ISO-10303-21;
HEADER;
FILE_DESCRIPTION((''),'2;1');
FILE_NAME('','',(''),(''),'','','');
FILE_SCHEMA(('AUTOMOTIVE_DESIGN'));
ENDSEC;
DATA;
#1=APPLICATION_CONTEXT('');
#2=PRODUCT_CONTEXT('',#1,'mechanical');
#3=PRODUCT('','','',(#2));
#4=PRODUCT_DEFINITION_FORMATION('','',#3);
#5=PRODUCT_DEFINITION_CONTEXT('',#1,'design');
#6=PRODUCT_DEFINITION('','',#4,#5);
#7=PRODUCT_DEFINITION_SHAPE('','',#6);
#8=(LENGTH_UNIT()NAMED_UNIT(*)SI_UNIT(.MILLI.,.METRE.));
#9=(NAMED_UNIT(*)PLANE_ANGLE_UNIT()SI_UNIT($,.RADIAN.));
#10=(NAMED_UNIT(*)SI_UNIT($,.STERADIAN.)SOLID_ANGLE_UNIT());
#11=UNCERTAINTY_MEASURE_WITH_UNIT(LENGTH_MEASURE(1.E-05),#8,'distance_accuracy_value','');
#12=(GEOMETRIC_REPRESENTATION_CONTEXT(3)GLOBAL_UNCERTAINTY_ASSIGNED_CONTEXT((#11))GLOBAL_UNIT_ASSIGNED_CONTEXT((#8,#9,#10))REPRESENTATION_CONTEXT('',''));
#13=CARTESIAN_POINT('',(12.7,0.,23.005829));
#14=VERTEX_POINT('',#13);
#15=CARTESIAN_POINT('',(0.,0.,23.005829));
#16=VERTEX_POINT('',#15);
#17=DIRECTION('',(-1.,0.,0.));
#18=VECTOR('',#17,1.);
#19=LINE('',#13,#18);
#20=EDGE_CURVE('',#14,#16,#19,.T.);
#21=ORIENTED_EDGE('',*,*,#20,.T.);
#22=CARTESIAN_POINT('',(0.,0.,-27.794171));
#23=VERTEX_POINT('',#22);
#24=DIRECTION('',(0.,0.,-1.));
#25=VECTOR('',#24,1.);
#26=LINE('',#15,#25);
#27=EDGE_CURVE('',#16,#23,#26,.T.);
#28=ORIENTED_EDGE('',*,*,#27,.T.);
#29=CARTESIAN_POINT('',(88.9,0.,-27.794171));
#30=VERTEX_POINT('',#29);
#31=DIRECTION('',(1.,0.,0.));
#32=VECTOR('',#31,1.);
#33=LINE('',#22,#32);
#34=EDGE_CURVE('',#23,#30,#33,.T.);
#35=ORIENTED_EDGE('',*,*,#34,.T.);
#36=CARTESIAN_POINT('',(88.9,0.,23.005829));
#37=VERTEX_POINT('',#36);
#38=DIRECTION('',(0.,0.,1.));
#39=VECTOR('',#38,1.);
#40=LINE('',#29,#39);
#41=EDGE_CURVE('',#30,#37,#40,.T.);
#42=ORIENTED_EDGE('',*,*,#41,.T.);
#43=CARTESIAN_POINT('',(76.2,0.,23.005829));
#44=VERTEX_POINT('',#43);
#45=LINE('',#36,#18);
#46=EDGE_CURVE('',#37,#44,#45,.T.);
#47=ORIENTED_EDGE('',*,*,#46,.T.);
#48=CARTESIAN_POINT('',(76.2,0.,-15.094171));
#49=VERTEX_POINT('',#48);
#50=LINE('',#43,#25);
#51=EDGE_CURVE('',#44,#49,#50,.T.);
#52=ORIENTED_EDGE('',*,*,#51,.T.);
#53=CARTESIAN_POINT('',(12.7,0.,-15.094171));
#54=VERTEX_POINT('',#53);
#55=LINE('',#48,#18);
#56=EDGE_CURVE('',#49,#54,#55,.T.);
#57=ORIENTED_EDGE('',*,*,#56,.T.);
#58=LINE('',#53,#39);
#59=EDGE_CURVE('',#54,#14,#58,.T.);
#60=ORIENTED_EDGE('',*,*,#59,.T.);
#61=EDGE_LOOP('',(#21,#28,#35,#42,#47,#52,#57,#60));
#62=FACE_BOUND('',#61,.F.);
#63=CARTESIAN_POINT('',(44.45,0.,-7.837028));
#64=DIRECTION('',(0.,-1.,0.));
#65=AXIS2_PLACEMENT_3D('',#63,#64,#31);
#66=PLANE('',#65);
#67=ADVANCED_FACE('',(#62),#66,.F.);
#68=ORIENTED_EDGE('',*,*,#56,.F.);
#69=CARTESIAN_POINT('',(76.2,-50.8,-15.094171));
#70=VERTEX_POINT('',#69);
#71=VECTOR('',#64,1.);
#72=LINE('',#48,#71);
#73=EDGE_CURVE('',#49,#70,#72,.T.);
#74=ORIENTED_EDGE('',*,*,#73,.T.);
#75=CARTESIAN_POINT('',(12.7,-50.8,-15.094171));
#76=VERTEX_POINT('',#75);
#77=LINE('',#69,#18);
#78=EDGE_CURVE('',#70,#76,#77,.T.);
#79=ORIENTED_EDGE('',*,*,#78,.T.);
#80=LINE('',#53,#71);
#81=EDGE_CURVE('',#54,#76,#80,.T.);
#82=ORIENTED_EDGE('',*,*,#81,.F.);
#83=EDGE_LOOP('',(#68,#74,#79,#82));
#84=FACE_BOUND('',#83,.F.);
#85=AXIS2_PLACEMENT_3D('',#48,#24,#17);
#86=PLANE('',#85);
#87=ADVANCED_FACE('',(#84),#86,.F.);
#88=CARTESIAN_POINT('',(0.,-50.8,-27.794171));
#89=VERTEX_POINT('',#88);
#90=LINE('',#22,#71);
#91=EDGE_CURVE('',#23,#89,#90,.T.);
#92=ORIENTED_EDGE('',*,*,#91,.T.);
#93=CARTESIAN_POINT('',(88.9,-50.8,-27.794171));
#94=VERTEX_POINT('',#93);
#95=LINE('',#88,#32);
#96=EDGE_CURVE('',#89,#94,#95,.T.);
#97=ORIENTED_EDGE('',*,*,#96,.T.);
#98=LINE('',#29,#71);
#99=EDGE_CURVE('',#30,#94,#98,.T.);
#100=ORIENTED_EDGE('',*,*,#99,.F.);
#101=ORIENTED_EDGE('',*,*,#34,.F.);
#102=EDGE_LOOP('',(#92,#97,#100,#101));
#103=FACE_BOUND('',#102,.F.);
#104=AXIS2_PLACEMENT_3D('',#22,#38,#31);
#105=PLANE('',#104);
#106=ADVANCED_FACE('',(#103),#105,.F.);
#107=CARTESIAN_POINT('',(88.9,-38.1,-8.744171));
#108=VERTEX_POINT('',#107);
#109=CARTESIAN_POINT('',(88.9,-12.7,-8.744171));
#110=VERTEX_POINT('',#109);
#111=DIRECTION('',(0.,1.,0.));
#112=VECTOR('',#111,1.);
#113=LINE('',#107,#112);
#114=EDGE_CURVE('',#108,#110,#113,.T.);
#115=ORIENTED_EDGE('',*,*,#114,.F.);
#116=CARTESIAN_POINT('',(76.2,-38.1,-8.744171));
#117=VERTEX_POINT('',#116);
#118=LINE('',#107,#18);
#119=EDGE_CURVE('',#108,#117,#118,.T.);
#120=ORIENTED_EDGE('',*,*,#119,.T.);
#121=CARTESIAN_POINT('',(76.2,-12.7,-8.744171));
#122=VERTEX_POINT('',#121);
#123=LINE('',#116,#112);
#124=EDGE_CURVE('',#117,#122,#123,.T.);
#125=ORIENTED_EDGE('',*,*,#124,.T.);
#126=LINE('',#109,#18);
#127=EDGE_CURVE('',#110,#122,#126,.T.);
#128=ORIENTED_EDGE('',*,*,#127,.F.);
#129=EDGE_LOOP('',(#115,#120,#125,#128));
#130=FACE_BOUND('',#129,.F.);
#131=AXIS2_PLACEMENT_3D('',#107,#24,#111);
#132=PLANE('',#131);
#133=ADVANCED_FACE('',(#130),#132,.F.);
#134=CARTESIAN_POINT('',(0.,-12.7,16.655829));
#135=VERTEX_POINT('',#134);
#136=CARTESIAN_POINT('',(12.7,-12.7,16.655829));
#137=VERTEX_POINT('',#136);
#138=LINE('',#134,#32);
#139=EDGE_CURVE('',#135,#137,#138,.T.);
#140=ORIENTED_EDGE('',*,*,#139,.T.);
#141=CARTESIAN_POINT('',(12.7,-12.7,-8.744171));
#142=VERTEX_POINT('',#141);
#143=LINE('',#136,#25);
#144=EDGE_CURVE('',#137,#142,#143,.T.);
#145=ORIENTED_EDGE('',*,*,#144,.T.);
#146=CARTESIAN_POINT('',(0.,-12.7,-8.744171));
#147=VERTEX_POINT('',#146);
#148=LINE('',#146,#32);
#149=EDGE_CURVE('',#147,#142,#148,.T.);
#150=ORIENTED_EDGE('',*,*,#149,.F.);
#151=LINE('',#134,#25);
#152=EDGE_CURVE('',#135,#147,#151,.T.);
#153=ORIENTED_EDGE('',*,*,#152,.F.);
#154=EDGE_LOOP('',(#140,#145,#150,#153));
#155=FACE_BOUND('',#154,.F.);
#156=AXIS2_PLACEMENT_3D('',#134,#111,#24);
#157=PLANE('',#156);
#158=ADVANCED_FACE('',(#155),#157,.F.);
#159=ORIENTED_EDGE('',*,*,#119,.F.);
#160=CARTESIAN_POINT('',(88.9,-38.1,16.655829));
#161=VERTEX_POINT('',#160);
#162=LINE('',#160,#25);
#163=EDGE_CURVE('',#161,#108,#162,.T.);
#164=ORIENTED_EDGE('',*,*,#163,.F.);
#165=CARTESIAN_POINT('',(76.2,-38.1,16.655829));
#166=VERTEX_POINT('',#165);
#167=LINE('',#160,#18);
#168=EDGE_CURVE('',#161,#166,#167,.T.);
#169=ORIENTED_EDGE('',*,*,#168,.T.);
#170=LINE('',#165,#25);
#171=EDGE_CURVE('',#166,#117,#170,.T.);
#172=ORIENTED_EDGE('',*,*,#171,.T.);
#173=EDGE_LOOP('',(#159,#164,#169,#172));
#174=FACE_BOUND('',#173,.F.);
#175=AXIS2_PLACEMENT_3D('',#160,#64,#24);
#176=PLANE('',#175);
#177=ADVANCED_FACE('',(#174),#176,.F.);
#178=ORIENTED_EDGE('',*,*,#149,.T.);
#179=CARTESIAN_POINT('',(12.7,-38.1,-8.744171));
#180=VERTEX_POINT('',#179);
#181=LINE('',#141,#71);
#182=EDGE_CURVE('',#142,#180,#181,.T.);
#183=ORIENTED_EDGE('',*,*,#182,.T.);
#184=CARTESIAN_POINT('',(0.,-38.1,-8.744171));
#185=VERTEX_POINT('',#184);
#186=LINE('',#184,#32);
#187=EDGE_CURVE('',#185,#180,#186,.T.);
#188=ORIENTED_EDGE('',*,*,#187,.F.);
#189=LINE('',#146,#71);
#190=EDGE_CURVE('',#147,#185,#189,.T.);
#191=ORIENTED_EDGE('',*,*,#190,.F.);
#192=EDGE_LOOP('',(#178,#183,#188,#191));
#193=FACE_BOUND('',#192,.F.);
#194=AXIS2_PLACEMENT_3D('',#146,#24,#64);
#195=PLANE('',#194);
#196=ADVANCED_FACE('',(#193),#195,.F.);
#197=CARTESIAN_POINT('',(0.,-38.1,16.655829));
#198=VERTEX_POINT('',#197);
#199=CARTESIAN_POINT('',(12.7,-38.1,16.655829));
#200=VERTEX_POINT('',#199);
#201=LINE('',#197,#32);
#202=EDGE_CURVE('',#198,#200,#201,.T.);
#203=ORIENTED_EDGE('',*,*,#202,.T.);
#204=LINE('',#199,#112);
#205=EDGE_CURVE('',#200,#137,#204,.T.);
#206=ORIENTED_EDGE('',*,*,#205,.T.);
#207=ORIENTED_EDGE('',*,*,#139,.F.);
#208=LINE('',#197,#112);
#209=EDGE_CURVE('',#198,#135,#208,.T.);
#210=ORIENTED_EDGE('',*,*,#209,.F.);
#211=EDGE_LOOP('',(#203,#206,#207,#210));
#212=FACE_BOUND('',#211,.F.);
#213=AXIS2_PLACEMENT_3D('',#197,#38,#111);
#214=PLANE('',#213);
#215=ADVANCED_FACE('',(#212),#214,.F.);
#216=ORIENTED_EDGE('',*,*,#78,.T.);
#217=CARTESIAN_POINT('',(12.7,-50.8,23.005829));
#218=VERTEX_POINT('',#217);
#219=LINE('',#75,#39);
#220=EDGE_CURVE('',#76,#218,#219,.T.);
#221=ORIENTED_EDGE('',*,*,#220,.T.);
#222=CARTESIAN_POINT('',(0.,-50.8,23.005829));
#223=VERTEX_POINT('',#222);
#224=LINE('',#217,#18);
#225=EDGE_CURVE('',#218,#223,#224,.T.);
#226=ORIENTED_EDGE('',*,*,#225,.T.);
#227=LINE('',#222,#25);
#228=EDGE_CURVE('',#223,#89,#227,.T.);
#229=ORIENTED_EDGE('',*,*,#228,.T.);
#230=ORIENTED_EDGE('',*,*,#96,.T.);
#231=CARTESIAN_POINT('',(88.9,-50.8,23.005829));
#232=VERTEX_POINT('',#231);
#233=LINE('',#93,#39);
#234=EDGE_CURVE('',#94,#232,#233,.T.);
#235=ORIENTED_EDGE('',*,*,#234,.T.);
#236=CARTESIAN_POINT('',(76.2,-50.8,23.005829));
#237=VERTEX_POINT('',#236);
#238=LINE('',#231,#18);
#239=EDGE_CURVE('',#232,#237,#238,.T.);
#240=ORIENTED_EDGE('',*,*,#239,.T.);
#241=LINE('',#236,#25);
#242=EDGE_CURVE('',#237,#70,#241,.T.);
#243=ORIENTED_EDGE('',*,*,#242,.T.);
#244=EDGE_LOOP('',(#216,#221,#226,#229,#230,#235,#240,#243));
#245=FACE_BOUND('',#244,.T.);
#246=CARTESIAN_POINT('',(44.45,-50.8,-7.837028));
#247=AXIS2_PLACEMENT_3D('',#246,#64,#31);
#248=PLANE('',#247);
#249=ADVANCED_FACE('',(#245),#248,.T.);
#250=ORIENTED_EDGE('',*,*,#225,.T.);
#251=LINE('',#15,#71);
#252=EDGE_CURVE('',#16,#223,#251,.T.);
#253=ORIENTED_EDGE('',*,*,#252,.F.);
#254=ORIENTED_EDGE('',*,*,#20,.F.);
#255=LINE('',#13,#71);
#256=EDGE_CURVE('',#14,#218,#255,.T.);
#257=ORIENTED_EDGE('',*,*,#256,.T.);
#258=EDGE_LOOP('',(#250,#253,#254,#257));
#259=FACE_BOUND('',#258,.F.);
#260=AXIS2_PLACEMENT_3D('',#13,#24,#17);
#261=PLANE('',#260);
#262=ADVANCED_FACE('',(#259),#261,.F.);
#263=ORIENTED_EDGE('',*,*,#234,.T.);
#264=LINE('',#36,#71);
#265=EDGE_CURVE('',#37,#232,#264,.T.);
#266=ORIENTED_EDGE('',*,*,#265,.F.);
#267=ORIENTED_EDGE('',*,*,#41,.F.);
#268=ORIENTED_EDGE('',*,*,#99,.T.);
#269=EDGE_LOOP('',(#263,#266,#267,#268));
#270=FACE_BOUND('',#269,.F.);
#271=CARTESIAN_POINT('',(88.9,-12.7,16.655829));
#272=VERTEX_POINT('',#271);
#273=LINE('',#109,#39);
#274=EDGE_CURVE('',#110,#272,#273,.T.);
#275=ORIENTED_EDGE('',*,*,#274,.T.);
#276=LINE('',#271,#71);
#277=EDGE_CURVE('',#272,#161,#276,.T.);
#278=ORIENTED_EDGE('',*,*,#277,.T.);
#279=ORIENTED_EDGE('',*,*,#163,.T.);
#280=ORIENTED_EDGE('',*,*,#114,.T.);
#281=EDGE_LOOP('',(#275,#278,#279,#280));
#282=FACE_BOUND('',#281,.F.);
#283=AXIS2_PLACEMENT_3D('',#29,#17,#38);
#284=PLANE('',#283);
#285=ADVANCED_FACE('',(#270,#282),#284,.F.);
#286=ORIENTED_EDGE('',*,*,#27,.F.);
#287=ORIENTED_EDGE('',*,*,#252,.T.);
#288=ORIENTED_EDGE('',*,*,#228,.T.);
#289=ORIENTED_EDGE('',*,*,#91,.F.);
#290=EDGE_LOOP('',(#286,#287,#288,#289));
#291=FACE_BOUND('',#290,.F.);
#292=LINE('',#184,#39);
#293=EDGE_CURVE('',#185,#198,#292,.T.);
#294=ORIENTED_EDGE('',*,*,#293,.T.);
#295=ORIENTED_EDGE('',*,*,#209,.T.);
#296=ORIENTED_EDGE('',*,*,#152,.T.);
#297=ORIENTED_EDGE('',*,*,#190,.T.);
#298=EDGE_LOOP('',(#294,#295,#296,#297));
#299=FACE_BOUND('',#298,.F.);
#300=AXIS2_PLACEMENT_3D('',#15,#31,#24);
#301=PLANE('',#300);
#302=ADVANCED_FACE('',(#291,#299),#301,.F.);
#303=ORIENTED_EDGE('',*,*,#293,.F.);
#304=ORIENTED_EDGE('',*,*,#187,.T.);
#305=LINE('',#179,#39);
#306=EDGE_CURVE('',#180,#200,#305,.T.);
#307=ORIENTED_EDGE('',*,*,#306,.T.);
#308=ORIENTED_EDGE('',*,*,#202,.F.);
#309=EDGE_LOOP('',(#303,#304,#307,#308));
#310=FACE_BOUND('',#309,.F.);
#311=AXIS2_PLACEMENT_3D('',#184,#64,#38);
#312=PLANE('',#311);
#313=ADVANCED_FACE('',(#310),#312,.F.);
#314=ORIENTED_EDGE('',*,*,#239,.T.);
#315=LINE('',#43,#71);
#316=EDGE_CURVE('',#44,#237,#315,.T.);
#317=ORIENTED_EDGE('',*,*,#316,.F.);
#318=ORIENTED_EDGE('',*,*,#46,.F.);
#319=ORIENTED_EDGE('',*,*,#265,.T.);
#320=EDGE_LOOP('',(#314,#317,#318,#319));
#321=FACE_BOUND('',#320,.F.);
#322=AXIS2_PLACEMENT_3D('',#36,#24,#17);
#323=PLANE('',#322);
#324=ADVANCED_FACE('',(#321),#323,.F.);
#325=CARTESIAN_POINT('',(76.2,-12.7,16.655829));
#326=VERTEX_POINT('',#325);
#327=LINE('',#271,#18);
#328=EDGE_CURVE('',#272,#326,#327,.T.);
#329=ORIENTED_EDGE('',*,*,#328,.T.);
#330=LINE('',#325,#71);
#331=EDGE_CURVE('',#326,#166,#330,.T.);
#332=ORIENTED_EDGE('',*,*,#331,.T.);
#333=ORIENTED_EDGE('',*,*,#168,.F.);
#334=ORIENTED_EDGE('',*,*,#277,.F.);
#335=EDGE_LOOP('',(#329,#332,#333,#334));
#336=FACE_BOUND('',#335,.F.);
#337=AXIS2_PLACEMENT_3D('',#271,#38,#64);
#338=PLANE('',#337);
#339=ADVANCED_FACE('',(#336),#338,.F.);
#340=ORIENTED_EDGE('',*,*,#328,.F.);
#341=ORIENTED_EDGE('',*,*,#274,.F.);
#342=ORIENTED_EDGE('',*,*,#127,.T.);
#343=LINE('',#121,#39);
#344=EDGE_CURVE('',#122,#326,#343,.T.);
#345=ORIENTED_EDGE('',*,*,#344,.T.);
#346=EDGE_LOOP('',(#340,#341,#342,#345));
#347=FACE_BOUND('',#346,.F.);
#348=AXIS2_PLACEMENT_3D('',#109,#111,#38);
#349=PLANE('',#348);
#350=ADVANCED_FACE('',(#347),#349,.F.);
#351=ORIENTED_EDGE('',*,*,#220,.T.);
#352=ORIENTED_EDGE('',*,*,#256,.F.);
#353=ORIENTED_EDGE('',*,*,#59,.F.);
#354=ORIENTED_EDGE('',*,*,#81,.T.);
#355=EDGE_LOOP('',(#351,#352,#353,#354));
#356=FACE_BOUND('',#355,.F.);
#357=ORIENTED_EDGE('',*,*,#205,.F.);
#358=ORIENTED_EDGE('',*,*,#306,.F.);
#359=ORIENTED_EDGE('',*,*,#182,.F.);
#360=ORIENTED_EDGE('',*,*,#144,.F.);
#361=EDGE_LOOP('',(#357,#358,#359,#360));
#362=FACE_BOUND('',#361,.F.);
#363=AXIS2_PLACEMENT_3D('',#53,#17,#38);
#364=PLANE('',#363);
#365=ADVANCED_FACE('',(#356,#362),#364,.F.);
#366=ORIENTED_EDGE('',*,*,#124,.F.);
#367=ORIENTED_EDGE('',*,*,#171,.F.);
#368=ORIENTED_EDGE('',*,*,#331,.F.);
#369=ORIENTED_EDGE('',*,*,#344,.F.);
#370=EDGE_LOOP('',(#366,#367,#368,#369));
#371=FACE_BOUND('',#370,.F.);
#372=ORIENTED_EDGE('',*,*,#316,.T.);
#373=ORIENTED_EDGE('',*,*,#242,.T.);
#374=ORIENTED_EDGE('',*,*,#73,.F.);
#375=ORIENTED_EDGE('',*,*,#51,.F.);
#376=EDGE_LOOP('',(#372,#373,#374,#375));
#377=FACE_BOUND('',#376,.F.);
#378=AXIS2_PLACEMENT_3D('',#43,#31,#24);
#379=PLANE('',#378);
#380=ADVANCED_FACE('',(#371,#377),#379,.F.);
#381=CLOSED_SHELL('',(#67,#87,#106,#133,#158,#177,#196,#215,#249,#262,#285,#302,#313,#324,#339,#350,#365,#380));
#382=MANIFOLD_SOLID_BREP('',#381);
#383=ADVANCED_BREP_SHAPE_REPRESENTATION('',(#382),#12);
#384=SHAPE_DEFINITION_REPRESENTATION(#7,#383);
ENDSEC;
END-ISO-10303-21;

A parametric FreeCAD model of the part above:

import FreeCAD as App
import Part
import Sketcher
from FreeCAD import Vector
Q = App.Units.Quantity

doc = App.newDocument("Part")
body = doc.addObject("PartDesign::Body", "Body")

# Sketch on XZ plane
sketch1 = body.newObject("Sketcher::SketchObject", "Sketch")
sketch1.AttachmentSupport = (doc.getObject("XZ_Plane"), [""])
sketch1.MapMode = "FlatFace"
sketch1.addGeometry(Part.LineSegment(Vector(12.7, 23.005829, 0), Vector(0, 23.005829, 0)), False)
sketch1.addGeometry(Part.LineSegment(Vector(0, 23.005829, 0), Vector(0, -27.794171, 0)), False)
sketch1.addGeometry(Part.LineSegment(Vector(0, -27.794171, 0), Vector(88.9, -27.794171, 0)), False)
sketch1.addGeometry(Part.LineSegment(Vector(88.9, -27.794171, 0), Vector(88.9, 23.005829, 0)), False)
sketch1.addGeometry(Part.LineSegment(Vector(88.9, 23.005829, 0), Vector(76.2, 23.005829, 0)), False)
sketch1.addGeometry(Part.LineSegment(Vector(76.2, 23.005829, 0), Vector(76.2, -15.094171, 0)), False)
sketch1.addGeometry(Part.LineSegment(Vector(76.2, -15.094171, 0), Vector(12.7, -15.094171, 0)), False)
sketch1.addGeometry(Part.LineSegment(Vector(12.7, -15.094171, 0), Vector(12.7, 23.005829, 0)), False)
sketch1.addConstraint(Sketcher.Constraint("Coincident", 0, 2, 1, 1))
sketch1.addConstraint(Sketcher.Constraint("Coincident", 1, 2, 2, 1))
sketch1.addConstraint(Sketcher.Constraint("Coincident", 2, 2, 3, 1))
sketch1.addConstraint(Sketcher.Constraint("Coincident", 3, 2, 4, 1))
sketch1.addConstraint(Sketcher.Constraint("Coincident", 4, 2, 5, 1))
sketch1.addConstraint(Sketcher.Constraint("Coincident", 5, 2, 6, 1))
sketch1.addConstraint(Sketcher.Constraint("Coincident", 6, 2, 7, 1))
sketch1.addConstraint(Sketcher.Constraint("Coincident", 7, 2, 0, 1))
sketch1.addConstraint(Sketcher.Constraint("Horizontal", 0))
sketch1.addConstraint(Sketcher.Constraint("Vertical", 1))
sketch1.addConstraint(Sketcher.Constraint("Horizontal", 2))
sketch1.addConstraint(Sketcher.Constraint("Vertical", 3))
sketch1.addConstraint(Sketcher.Constraint("Horizontal", 4))
sketch1.addConstraint(Sketcher.Constraint("Vertical", 5))
sketch1.addConstraint(Sketcher.Constraint("Horizontal", 6))
sketch1.addConstraint(Sketcher.Constraint("Vertical", 7))
sketch1.addConstraint(Sketcher.Constraint("PointOnObject", 0, 2, -2))
sketch1.addConstraint(Sketcher.Constraint("Horizontal", 0, 2, 3, 2))
sketch1.addConstraint(Sketcher.Constraint("Equal", 0, 4))
sketch1.addConstraint(Sketcher.Constraint("DistanceY", 1, 2, 1, 1, Q("2 in")))
sketch1.addConstraint(Sketcher.Constraint("DistanceX", 0, 2, 0, 1, Q("0.5 in")))
sketch1.addConstraint(Sketcher.Constraint("DistanceX", 2, 1, 2, 2, Q("3.5 in")))
sketch1.addConstraint(Sketcher.Constraint("DistanceY", 5, 2, 5, 1, Q("1.5 in")))
sketch1.addConstraint(Sketcher.Constraint("DistanceY", -1, 1, 0, 2, Q("23.005829 mm")))
pad1 = body.newObject("PartDesign::Pad", "Pad")
pad1.Profile = sketch1
pad1.Length = Q("2 in")

# Sketch on YZ plane
sketch2 = body.newObject("Sketcher::SketchObject", "Sketch001")
sketch2.AttachmentSupport = (doc.getObject("YZ_Plane"), [""])
sketch2.MapMode = "FlatFace"
sketch2.AttachmentOffset = App.Placement(Vector(0, 0, 3.5 * 25.4), App.Rotation())
sketch2.addGeometry(Part.LineSegment(Vector(-12.7, 16.655829, 0), Vector(-38.1, 16.655829, 0)), False)
sketch2.addGeometry(Part.LineSegment(Vector(-38.1, 16.655829, 0), Vector(-38.1, -8.744171, 0)), False)
sketch2.addGeometry(Part.LineSegment(Vector(-38.1, -8.744171, 0), Vector(-12.7, -8.744171, 0)), False)
sketch2.addGeometry(Part.LineSegment(Vector(-12.7, -8.744171, 0), Vector(-12.7, 16.655829, 0)), False)
sketch2.addConstraint(Sketcher.Constraint("Coincident", 0, 2, 1, 1))
sketch2.addConstraint(Sketcher.Constraint("Coincident", 1, 2, 2, 1))
sketch2.addConstraint(Sketcher.Constraint("Coincident", 2, 2, 3, 1))
sketch2.addConstraint(Sketcher.Constraint("Coincident", 3, 2, 0, 1))
sketch2.addConstraint(Sketcher.Constraint("Horizontal", 0))
sketch2.addConstraint(Sketcher.Constraint("Vertical", 1))
sketch2.addConstraint(Sketcher.Constraint("Horizontal", 2))
sketch2.addConstraint(Sketcher.Constraint("Vertical", 3))
sketch2.addConstraint(Sketcher.Constraint("Equal", 2, 1))
sketch2.addConstraint(Sketcher.Constraint("DistanceX", 0, 2, 0, 1, Q("1 in")))
sketch2.addConstraint(Sketcher.Constraint("DistanceX", 0, 2, -1, 1, Q("1.5 in")))
sketch2.addConstraint(Sketcher.Constraint("DistanceY", -1, 1, 0, 2, Q("16.655829 mm")))
pocket1 = body.newObject("PartDesign::Pocket", "Pocket")
pocket1.Profile = sketch2
pocket1.Length = Q("0.5 in")

# Sketch on YZ plane
sketch3 = body.newObject("Sketcher::SketchObject", "Sketch002")
sketch3.AttachmentSupport = (doc.getObject("YZ_Plane"), [""])
sketch3.MapMode = "FlatFace"
sketch3.addGeometry(Part.LineSegment(Vector(-38.1, 16.655829, 0), Vector(-12.7, 16.655829, 0)), False)
sketch3.addGeometry(Part.LineSegment(Vector(-12.7, 16.655829, 0), Vector(-12.7, -8.744171, 0)), False)
sketch3.addGeometry(Part.LineSegment(Vector(-12.7, -8.744171, 0), Vector(-38.1, -8.744171, 0)), False)
sketch3.addGeometry(Part.LineSegment(Vector(-38.1, -8.744171, 0), Vector(-38.1, 16.655829, 0)), False)
sketch3.addConstraint(Sketcher.Constraint("Coincident", 0, 2, 1, 1))
sketch3.addConstraint(Sketcher.Constraint("Coincident", 1, 2, 2, 1))
sketch3.addConstraint(Sketcher.Constraint("Coincident", 2, 2, 3, 1))
sketch3.addConstraint(Sketcher.Constraint("Coincident", 3, 2, 0, 1))
sketch3.addConstraint(Sketcher.Constraint("Horizontal", 0))
sketch3.addConstraint(Sketcher.Constraint("Vertical", 1))
sketch3.addConstraint(Sketcher.Constraint("Horizontal", 2))
sketch3.addConstraint(Sketcher.Constraint("Vertical", 3))
sketch3.addConstraint(Sketcher.Constraint("Equal", 2, 1))
sketch3.addConstraint(Sketcher.Constraint("DistanceX", 0, 1, 0, 2, Q("1 in")))
sketch3.addConstraint(Sketcher.Constraint("DistanceX", 0, 2, -1, 1, Q("0.5 in")))
sketch3.addConstraint(Sketcher.Constraint("DistanceY", -1, 1, 0, 2, Q("16.655829 mm")))
pocket2 = body.newObject("PartDesign::Pocket", "Pocket001")
pocket2.Profile = sketch3
pocket2.Length = Q("0.5 in")
pocket2.Reversed = True

doc.recompute()
